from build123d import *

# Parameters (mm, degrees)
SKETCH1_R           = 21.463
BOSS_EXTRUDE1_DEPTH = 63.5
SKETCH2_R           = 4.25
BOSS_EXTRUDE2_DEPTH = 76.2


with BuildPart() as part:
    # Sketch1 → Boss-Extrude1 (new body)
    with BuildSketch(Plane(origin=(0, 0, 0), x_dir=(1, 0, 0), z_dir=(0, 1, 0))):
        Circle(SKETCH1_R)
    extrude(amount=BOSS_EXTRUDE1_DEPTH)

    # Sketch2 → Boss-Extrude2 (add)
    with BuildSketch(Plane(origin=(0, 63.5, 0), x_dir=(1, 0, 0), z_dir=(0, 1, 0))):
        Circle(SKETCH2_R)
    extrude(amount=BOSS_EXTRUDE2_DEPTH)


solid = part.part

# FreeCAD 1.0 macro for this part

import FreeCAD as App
import Part
import Sketcher
from FreeCAD import Vector
Q = App.Units.Quantity

doc = App.newDocument("Part")
body = doc.addObject("PartDesign::Body", "Body")

sketch1 = doc.addObject("Sketcher::SketchObject", "Sketch")
body.addObject(sketch1)
sketch1.AttachmentSupport = (doc.XZ_Plane, [""])
sketch1.MapMode = "FlatFace"
sketch1.addGeometry(Part.Circle(Vector(0, 0, 0), Vector(0, 0, 1), 21), False)
sketch1.addConstraint([
    Sketcher.Constraint("Coincident", 0, 3, -1, 1),
    Sketcher.Constraint("Diameter", 0, Q("1.69 in")),
])
pad1 = doc.addObject("PartDesign::Pad", "Pad")
body.addObject(pad1)
pad1.Profile = sketch1
pad1.Length = Q("2.5 in")
pad1.Reversed = True

sketch2 = doc.addObject("Sketcher::SketchObject", "Sketch001")
body.addObject(sketch2)
sketch2.AttachmentSupport = (doc.XZ_Plane, [""])
sketch2.MapMode = "FlatFace"
sketch2.AttachmentOffset = App.Placement(Vector(0, 0, -2.5 * 25.4), App.Rotation())
sketch2.addGeometry(Part.Circle(Vector(0, 0, 0), Vector(0, 0, 1), 4.2), False)
sketch2.addConstraint([
    Sketcher.Constraint("Coincident", 0, 3, -1, 1),
    Sketcher.Constraint("Diameter", 0, Q("8.5 mm")),
])
pad2 = doc.addObject("PartDesign::Pad", "Pad001")
body.addObject(pad2)
pad2.Profile = sketch2
pad2.Length = Q("3 in")
pad2.Reversed = True

doc.recompute()
